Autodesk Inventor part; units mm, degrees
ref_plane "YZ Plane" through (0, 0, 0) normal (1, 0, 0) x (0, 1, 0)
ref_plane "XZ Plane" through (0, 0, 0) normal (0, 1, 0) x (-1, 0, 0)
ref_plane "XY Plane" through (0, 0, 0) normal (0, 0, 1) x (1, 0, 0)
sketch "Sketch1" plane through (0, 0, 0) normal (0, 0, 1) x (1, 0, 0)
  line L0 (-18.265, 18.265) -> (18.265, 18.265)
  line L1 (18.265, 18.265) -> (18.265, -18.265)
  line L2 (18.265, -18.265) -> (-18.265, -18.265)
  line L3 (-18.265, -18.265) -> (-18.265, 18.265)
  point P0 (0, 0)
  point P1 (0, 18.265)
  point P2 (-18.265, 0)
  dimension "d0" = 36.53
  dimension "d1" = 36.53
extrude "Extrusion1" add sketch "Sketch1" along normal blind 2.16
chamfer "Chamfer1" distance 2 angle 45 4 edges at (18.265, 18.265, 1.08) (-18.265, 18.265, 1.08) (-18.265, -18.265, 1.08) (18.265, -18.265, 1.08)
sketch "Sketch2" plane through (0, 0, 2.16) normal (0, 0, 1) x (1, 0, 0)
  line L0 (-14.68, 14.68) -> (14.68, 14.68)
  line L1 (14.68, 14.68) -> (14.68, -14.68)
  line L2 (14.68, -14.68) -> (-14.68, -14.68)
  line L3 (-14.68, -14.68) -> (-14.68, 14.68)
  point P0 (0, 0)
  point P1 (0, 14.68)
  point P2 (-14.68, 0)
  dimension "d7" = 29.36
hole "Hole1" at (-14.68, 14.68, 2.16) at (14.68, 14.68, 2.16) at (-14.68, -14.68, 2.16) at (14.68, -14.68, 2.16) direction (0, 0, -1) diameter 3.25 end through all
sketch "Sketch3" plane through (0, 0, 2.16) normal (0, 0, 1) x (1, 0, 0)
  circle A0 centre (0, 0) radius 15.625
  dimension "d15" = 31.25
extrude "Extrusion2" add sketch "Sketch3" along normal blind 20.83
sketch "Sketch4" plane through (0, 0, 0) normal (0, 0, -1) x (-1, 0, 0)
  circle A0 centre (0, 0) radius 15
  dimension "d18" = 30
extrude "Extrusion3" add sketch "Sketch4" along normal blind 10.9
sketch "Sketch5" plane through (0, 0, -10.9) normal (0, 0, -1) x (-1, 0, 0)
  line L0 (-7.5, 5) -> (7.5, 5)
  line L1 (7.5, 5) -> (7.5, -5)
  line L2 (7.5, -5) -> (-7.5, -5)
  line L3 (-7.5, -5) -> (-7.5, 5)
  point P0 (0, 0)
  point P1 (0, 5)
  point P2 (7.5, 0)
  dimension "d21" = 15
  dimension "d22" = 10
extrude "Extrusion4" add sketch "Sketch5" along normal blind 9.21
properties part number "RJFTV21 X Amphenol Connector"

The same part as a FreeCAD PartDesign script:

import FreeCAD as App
import Part
import Sketcher


def edges_at(feature, points):
    """Names of the edges that pass closest to the given points."""
    edges = feature.Shape.Edges
    near = lambda p: min(range(len(edges)), key=lambda i: edges[i].distToShape(Part.Vertex(*p))[0])
    return sorted({f"Edge{near(p) + 1}" for p in points})

doc = App.newDocument("Part")
body = doc.addObject("PartDesign::Body", "Body")

sketch1 = doc.addObject("Sketcher::SketchObject", "Sketch")
body.addObject(sketch1)
sketch1.AttachmentSupport = (doc.XY_Plane, [""])
sketch1.MapMode = "FlatFace"
sketch1.addGeometry(Part.LineSegment(App.Vector(18, 18, 0), App.Vector(-18, 18, 0)), False)
sketch1.addGeometry(Part.LineSegment(App.Vector(-18, 18, 0), App.Vector(-18, -18, 0)), False)
sketch1.addGeometry(Part.LineSegment(App.Vector(-18, -18, 0), App.Vector(18, -18, 0)), False)
sketch1.addGeometry(Part.LineSegment(App.Vector(18, -18, 0), App.Vector(18, 18, 0)), False)
sketch1.addConstraint(Sketcher.Constraint("Coincident", 0, 2, 1, 1))
sketch1.addConstraint(Sketcher.Constraint("Coincident", 1, 2, 2, 1))
sketch1.addConstraint(Sketcher.Constraint("Coincident", 2, 2, 3, 1))
sketch1.addConstraint(Sketcher.Constraint("Coincident", 3, 2, 0, 1))
sketch1.addConstraint(Sketcher.Constraint("Horizontal", 0))
sketch1.addConstraint(Sketcher.Constraint("Vertical", 1))
sketch1.addConstraint(Sketcher.Constraint("Horizontal", 2))
sketch1.addConstraint(Sketcher.Constraint("Vertical", 3))
sketch1.addConstraint(Sketcher.Constraint("Symmetric", 0, 2, 2, 2, -1, 1))
sketch1.addConstraint(Sketcher.Constraint("Equal", 2, 1))
sketch1.addConstraint(Sketcher.Constraint("DistanceX", 0, 2, 0, 1, 36.53))
pad1 = doc.addObject("PartDesign::Pad", "Pad")
body.addObject(pad1)
pad1.Profile = sketch1
pad1.Length = 2.16
doc.recompute()

chamfer = doc.addObject("PartDesign::Chamfer", "Chamfer")
body.addObject(chamfer)
chamfer.Base = (pad1, edges_at(pad1, [
    (18.265, 18.265, 1.08),
    (-18.265, 18.265, 1.08),
    (-18.265, -18.265, 1.08),
    (18.265, -18.265, 1.08),
]))
chamfer.Size = 2

sketch2 = doc.addObject("Sketcher::SketchObject", "Sketch001")
body.addObject(sketch2)
sketch2.AttachmentSupport = (doc.XY_Plane, [""])
sketch2.MapMode = "FlatFace"
sketch2.AttachmentOffset = App.Placement(App.Vector(0, 0, 2.16), App.Rotation())
sketch2.addGeometry(Part.Circle(App.Vector(-14.7, 14.7, 0), App.Vector(0, 0, 1), 1.6), False)
sketch2.addGeometry(Part.Circle(App.Vector(14.7, 14.7, 0), App.Vector(0, 0, 1), 1.6), False)
sketch2.addGeometry(Part.Circle(App.Vector(-14.7, -14.7, 0), App.Vector(0, 0, 1), 1.6), False)
sketch2.addGeometry(Part.Circle(App.Vector(14.7, -14.7, 0), App.Vector(0, 0, 1), 1.6), False)
sketch2.addConstraint(Sketcher.Constraint("Equal", 0, 1))
sketch2.addConstraint(Sketcher.Constraint("Equal", 1, 2))
sketch2.addConstraint(Sketcher.Constraint("Equal", 2, 3))
sketch2.addConstraint(Sketcher.Constraint("Symmetric", 1, 3, 2, 3, -1, 1))
sketch2.addConstraint(Sketcher.Constraint("Symmetric", 0, 3, 3, 3, -1, 1))
sketch2.addConstraint(Sketcher.Constraint("Symmetric", 0, 3, 1, 3, -2))
sketch2.addConstraint(Sketcher.Constraint("Diameter", 0, 3.25))
sketch2.addConstraint(Sketcher.Constraint("DistanceX", 0, 3, -1, 1, 14.68))
sketch2.addConstraint(Sketcher.Constraint("DistanceY", -1, 1, 0, 3, 14.68))
doc.recompute()
hole = doc.addObject("PartDesign::Hole", "Hole")
body.addObject(hole)
hole.Profile = sketch2
hole.ThreadType = "None"
hole.Diameter = 3.25
hole.DepthType = "ThroughAll"

sketch3 = doc.addObject("Sketcher::SketchObject", "Sketch002")
body.addObject(sketch3)
sketch3.AttachmentSupport = (doc.XY_Plane, [""])
sketch3.MapMode = "FlatFace"
sketch3.AttachmentOffset = App.Placement(App.Vector(0, 0, 2.16), App.Rotation())
sketch3.addGeometry(Part.Circle(App.Vector(0, 0, 0), App.Vector(0, 0, 1), 16), False)
sketch3.addConstraint(Sketcher.Constraint("Coincident", 0, 3, -1, 1))
sketch3.addConstraint(Sketcher.Constraint("Diameter", 0, 31.25))
pad2 = doc.addObject("PartDesign::Pad", "Pad001")
body.addObject(pad2)
pad2.Profile = sketch3
pad2.Length = 20.83

sketch4 = doc.addObject("Sketcher::SketchObject", "Sketch003")
body.addObject(sketch4)
sketch4.AttachmentSupport = (doc.XY_Plane, [""])
sketch4.MapMode = "FlatFace"
sketch4.addGeometry(Part.Circle(App.Vector(0, 0, 0), App.Vector(0, 0, 1), 15), False)
sketch4.addConstraint(Sketcher.Constraint("Coincident", 0, 3, -1, 1))
sketch4.addConstraint(Sketcher.Constraint("Diameter", 0, 30.0))
pad3 = doc.addObject("PartDesign::Pad", "Pad002")
body.addObject(pad3)
pad3.Profile = sketch4
pad3.Length = 10.9
pad3.Reversed = True

sketch5 = doc.addObject("Sketcher::SketchObject", "Sketch004")
body.addObject(sketch5)
sketch5.AttachmentSupport = (doc.XY_Plane, [""])
sketch5.MapMode = "FlatFace"
sketch5.AttachmentOffset = App.Placement(App.Vector(0, 0, -10.9), App.Rotation())
sketch5.addGeometry(Part.LineSegment(App.Vector(-8, 5, 0), App.Vector(8, 5, 0)), False)
sketch5.addGeometry(Part.LineSegment(App.Vector(8, 5, 0), App.Vector(8, -5, 0)), False)
sketch5.addGeometry(Part.LineSegment(App.Vector(8, -5, 0), App.Vector(-8, -5, 0)), False)
sketch5.addGeometry(Part.LineSegment(App.Vector(-8, -5, 0), App.Vector(-8, 5, 0)), False)
sketch5.addConstraint(Sketcher.Constraint("Coincident", 0, 2, 1, 1))
sketch5.addConstraint(Sketcher.Constraint("Coincident", 1, 2, 2, 1))
sketch5.addConstraint(Sketcher.Constraint("Coincident", 2, 2, 3, 1))
sketch5.addConstraint(Sketcher.Constraint("Coincident", 3, 2, 0, 1))
sketch5.addConstraint(Sketcher.Constraint("Horizontal", 0))
sketch5.addConstraint(Sketcher.Constraint("Vertical", 1))
sketch5.addConstraint(Sketcher.Constraint("Horizontal", 2))
sketch5.addConstraint(Sketcher.Constraint("Vertical", 3))
sketch5.addConstraint(Sketcher.Constraint("Symmetric", 0, 2, 2, 2, -1, 1))
sketch5.addConstraint(Sketcher.Constraint("DistanceX", 0, 1, 0, 2, 15.0))
sketch5.addConstraint(Sketcher.Constraint("DistanceY", 1, 2, 1, 1, 10.0))
pad4 = doc.addObject("PartDesign::Pad", "Pad003")
body.addObject(pad4)
pad4.Profile = sketch5
pad4.Length = 9.21
pad4.Reversed = True

doc.recompute()
